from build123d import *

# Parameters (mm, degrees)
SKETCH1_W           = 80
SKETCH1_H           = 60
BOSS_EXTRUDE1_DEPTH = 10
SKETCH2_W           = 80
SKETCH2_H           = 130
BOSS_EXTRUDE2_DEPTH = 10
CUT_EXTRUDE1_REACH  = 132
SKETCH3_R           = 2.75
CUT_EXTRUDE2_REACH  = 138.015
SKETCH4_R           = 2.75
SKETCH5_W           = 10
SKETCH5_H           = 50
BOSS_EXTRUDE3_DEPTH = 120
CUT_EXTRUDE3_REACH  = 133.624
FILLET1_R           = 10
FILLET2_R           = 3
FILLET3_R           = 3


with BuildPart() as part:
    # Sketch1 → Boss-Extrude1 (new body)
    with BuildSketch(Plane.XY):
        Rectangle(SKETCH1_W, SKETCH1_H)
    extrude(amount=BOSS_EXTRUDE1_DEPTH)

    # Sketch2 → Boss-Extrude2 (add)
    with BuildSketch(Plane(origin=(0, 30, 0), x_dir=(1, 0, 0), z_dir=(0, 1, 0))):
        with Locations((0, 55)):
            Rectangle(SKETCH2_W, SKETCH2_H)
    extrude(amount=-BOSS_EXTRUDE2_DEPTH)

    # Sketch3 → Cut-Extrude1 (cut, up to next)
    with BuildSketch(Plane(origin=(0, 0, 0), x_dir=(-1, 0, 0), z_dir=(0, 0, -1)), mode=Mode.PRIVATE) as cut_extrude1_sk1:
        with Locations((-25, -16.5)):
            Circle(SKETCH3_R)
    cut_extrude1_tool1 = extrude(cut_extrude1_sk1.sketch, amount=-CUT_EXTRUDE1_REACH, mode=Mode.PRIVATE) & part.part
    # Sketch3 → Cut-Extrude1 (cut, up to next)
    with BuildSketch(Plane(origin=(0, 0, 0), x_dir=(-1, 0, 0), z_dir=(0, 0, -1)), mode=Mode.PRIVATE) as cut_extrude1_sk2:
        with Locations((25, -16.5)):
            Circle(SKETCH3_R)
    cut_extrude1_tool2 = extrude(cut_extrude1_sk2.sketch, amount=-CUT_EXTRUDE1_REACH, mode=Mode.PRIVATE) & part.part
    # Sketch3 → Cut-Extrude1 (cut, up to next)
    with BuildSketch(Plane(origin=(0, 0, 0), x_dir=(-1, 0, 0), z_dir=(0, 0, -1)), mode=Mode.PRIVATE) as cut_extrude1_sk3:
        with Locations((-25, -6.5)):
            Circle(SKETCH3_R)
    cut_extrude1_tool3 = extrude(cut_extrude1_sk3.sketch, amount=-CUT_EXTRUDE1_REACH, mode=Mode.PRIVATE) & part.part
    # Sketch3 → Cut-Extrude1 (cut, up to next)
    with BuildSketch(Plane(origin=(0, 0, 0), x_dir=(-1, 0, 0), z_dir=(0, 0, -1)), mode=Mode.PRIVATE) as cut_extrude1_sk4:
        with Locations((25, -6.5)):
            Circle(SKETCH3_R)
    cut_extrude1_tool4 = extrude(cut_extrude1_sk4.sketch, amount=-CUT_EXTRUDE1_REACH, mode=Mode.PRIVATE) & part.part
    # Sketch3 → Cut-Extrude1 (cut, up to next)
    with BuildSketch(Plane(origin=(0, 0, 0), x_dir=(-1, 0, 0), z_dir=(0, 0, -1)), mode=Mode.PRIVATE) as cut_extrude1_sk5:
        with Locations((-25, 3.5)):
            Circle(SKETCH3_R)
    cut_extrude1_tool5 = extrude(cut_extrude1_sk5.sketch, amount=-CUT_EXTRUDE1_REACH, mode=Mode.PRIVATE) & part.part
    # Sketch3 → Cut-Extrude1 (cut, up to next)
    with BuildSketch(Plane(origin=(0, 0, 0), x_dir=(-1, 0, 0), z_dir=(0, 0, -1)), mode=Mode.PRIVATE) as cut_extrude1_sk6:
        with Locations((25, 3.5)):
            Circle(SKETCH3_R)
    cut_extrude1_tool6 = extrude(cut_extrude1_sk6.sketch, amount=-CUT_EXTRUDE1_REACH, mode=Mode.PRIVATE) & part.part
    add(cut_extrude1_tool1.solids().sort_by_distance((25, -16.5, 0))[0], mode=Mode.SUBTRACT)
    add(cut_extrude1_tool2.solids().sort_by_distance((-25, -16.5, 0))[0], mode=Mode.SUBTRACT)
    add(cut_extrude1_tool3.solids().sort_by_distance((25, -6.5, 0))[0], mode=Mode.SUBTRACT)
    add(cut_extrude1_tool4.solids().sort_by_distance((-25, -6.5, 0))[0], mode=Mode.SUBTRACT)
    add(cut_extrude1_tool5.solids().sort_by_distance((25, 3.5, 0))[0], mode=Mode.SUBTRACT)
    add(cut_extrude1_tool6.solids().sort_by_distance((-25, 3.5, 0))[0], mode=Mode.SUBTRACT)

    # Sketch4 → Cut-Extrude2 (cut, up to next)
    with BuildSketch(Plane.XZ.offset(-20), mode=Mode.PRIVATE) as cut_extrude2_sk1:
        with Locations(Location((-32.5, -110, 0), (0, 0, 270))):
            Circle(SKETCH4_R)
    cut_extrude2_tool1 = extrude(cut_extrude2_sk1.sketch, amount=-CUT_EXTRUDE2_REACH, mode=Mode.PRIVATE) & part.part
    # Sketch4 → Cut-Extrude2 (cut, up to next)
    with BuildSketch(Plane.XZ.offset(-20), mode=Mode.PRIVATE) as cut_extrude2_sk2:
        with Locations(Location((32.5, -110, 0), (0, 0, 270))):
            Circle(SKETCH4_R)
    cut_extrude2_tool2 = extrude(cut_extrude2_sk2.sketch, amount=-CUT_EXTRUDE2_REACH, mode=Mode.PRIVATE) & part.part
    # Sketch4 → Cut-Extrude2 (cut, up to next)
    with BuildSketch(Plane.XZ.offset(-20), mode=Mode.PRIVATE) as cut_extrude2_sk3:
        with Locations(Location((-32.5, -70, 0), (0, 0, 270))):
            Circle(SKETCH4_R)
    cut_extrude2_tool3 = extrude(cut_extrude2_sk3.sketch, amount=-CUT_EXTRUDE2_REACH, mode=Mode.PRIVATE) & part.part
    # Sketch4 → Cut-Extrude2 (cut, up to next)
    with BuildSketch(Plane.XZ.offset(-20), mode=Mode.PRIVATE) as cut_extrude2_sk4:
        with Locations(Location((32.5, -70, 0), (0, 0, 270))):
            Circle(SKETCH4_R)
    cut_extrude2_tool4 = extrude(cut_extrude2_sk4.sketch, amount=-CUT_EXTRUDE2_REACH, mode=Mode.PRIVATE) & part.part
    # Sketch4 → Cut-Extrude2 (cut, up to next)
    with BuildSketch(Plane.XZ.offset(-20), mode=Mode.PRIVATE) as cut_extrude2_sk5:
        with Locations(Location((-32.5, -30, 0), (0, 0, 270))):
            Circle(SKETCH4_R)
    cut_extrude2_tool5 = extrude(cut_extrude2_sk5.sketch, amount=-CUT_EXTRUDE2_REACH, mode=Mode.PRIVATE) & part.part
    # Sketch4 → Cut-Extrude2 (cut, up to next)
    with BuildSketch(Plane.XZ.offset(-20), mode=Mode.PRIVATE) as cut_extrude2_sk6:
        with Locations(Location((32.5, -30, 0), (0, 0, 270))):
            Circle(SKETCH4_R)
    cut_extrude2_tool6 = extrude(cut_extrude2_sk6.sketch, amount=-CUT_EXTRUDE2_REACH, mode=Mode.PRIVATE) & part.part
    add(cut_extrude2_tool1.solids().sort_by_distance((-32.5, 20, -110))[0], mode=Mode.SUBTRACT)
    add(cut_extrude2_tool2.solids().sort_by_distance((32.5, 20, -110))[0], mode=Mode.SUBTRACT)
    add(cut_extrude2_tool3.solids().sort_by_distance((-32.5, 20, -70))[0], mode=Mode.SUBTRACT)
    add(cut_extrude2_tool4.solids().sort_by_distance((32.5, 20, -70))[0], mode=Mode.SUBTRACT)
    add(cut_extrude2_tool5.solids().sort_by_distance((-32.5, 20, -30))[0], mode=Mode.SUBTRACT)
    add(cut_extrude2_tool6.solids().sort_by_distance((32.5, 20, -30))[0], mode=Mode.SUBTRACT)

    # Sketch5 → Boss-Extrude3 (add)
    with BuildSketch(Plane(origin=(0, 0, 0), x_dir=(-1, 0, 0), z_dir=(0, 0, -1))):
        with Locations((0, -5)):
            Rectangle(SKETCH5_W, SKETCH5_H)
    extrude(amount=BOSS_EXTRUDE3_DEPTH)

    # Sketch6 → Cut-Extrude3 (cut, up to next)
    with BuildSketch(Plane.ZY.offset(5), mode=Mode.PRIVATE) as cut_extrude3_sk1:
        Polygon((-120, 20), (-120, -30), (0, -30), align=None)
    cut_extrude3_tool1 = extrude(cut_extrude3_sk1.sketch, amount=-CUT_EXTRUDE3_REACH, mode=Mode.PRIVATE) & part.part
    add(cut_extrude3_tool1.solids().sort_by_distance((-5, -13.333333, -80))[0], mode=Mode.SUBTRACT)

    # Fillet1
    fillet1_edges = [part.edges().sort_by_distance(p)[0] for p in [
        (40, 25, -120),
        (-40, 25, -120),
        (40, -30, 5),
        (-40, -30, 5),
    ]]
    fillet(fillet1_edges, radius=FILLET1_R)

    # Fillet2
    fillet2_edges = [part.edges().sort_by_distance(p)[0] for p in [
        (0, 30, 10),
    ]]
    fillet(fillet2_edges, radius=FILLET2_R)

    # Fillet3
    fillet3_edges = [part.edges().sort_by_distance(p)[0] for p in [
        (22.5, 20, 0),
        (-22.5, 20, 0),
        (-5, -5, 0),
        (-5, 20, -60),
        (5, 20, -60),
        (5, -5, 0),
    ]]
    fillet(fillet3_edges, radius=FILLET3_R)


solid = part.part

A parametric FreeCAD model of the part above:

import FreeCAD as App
import Part
import Sketcher

V = App.Vector
Q = App.Units.Quantity


def edges_at(feature, points):
    """Names of the edges that pass closest to the given points."""
    edges = feature.Shape.Edges
    near = lambda p: min(range(len(edges)), key=lambda i: edges[i].distToShape(Part.Vertex(*p))[0])
    return sorted({f"Edge{near(p) + 1}" for p in points})


def add_polygon(sketch, points):
    """Adds a closed chain of lines whose ends are joined by coincident constraints."""
    first, n = sketch.GeometryCount, len(points)
    for a, b in zip(points, points[1:] + points[:1]):
        sketch.addGeometry(Part.LineSegment(App.Vector(*a, 0), App.Vector(*b, 0)), False)
    for i in range(n):
        sketch.addConstraint(Sketcher.Constraint("Coincident", first + i, 2, first + (i + 1) % n, 1))

doc = App.newDocument("Part")
params = doc.addObject("Spreadsheet::Sheet", "Params")
for row, (alias, value) in enumerate([
    ("sketch1_width", "80 mm"),
    ("sketch1_height", "60 mm"),
    ("pad1_length", "10 mm"),
    ("sketch2_width", "80 mm"),
    ("sketch2_height", "130 mm"),
    ("pad2_length", "10 mm"),
    ("sketch3_diameter", "5.5 mm"),
    ("sketch4_diameter", "5.5 mm"),
    ("sketch5_diameter", "5.5 mm"),
    ("sketch6_diameter", "5.5 mm"),
    ("sketch7_diameter", "5.5 mm"),
    ("sketch8_diameter", "5.5 mm"),
    ("sketch9_diameter", "5.5 mm"),
    ("sketch10_diameter", "5.5 mm"),
    ("sketch11_diameter", "5.5 mm"),
    ("sketch12_diameter", "5.5 mm"),
    ("sketch13_diameter", "5.5 mm"),
    ("sketch14_diameter", "5.5 mm"),
    ("sketch15_width", "10 mm"),
    ("sketch15_height", "50 mm"),
    ("pad3_length", "120 mm"),
    ("sketch16_width", "50 mm"),
    ("sketch16_height", "120 mm"),
    ("fillet_radius", "10 mm"),
    ("fillet2_radius", "3 mm"),
    ("fillet3_radius", "3 mm"),
], start=1):
    params.set(f"A{row}", alias)
    params.set(f"B{row}", "=" + value)
    params.setAlias(f"B{row}", alias)

body = doc.addObject("PartDesign::Body", "Body")

# Sketch on XY plane
sketch1 = body.newObject("Sketcher::SketchObject", "Sketch")
sketch1.AttachmentSupport = (doc.getObject("XY_Plane"), [""])
sketch1.MapMode = "FlatFace"
add_polygon(sketch1, [(-40, 30), (-40, -30), (40, -30), (40, 30)])  # lines 0-3
sketch1.addConstraint([
    Sketcher.Constraint("Vertical", 0),
    Sketcher.Constraint("Horizontal", 1),
    Sketcher.Constraint("Vertical", 2),
    Sketcher.Constraint("Horizontal", 3),
    Sketcher.Constraint("Symmetric", 0, 2, 2, 2, -1, 1),
    Sketcher.Constraint("DistanceX", 1, 1, 1, 2, Q("80 mm")),
    Sketcher.Constraint("DistanceY", 0, 2, 0, 1, Q("60 mm")),
])
sketch1.setExpression("Constraints[9]", "Params.sketch1_width")
sketch1.setExpression("Constraints[10]", "Params.sketch1_height")
pad1 = body.newObject("PartDesign::Pad", "Pad")
pad1.Profile = sketch1
pad1.setExpression("Length", "Params.pad1_length")

# Sketch on XZ plane
sketch2 = body.newObject("Sketcher::SketchObject", "Sketch001")
sketch2.AttachmentSupport = (doc.getObject("XZ_Plane"), [""])
sketch2.MapMode = "FlatFace"
sketch2.AttachmentOffset = App.Placement(V(0, 0, -30), App.Rotation())
add_polygon(sketch2, [(-40, -120), (-40, 10), (40, 10), (40, -120)])  # lines 0-3
sketch2.addConstraint([
    Sketcher.Constraint("Vertical", 0),
    Sketcher.Constraint("Horizontal", 1),
    Sketcher.Constraint("Vertical", 2),
    Sketcher.Constraint("Horizontal", 3),
    Sketcher.Constraint("DistanceX", 1, 1, 1, 2, Q("80 mm")),
    Sketcher.Constraint("DistanceY", 0, 1, 0, 2, Q("130 mm")),
    Sketcher.Constraint("DistanceX", 0, 2, -1, 1, Q("40 mm")),
    Sketcher.Constraint("DistanceY", -1, 1, 0, 2, Q("10 mm")),
])
sketch2.setExpression("Constraints[8]", "Params.sketch2_width")
sketch2.setExpression("Constraints[9]", "Params.sketch2_height")
pad2 = body.newObject("PartDesign::Pad", "Pad001")
pad2.Profile = sketch2
pad2.setExpression("Length", "Params.pad2_length")

# Sketch on XY plane
sketch3 = body.newObject("Sketcher::SketchObject", "Sketch002")
sketch3.AttachmentSupport = (doc.getObject("XY_Plane"), [""])
sketch3.MapMode = "FlatFace"
sketch3.addGeometry(Part.Circle(V(25, -16.5, 0), V(0, 0, 1), 2.75), False)
sketch3.addConstraint([
    Sketcher.Constraint("Diameter", 0, Q("5.5 mm")),
    Sketcher.Constraint("DistanceX", -1, 1, 0, 3, Q("25 mm")),
    Sketcher.Constraint("DistanceY", 0, 3, -1, 1, Q("16.5 mm")),
])
sketch3.setExpression("Constraints[0]", "Params.sketch3_diameter")
pocket1 = body.newObject("PartDesign::Pocket", "Pocket")
pocket1.Profile = sketch3
pocket1.Type = "UpToFirst"
pocket1.Reversed = True

# Sketch on XY plane
sketch4 = body.newObject("Sketcher::SketchObject", "Sketch003")
sketch4.AttachmentSupport = (doc.getObject("XY_Plane"), [""])
sketch4.MapMode = "FlatFace"
sketch4.addGeometry(Part.Circle(V(-25, -16.5, 0), V(0, 0, 1), 2.75), False)
sketch4.addConstraint([
    Sketcher.Constraint("Diameter", 0, Q("5.5 mm")),
    Sketcher.Constraint("DistanceX", 0, 3, -1, 1, Q("25 mm")),
    Sketcher.Constraint("DistanceY", 0, 3, -1, 1, Q("16.5 mm")),
])
sketch4.setExpression("Constraints[0]", "Params.sketch4_diameter")
pocket2 = body.newObject("PartDesign::Pocket", "Pocket001")
pocket2.Profile = sketch4
pocket2.Type = "UpToFirst"
pocket2.Reversed = True

# Sketch on XY plane
sketch5 = body.newObject("Sketcher::SketchObject", "Sketch004")
sketch5.AttachmentSupport = (doc.getObject("XY_Plane"), [""])
sketch5.MapMode = "FlatFace"
sketch5.addGeometry(Part.Circle(V(25, -6.5, 0), V(0, 0, 1), 2.75), False)
sketch5.addConstraint([
    Sketcher.Constraint("Diameter", 0, Q("5.5 mm")),
    Sketcher.Constraint("DistanceX", -1, 1, 0, 3, Q("25 mm")),
    Sketcher.Constraint("DistanceY", 0, 3, -1, 1, Q("6.5 mm")),
])
sketch5.setExpression("Constraints[0]", "Params.sketch5_diameter")
pocket3 = body.newObject("PartDesign::Pocket", "Pocket002")
pocket3.Profile = sketch5
pocket3.Type = "UpToFirst"
pocket3.Reversed = True

# Sketch on XY plane
sketch6 = body.newObject("Sketcher::SketchObject", "Sketch005")
sketch6.AttachmentSupport = (doc.getObject("XY_Plane"), [""])
sketch6.MapMode = "FlatFace"
sketch6.addGeometry(Part.Circle(V(-25, -6.5, 0), V(0, 0, 1), 2.75), False)
sketch6.addConstraint([
    Sketcher.Constraint("Diameter", 0, Q("5.5 mm")),
    Sketcher.Constraint("DistanceX", 0, 3, -1, 1, Q("25 mm")),
    Sketcher.Constraint("DistanceY", 0, 3, -1, 1, Q("6.5 mm")),
])
sketch6.setExpression("Constraints[0]", "Params.sketch6_diameter")
pocket4 = body.newObject("PartDesign::Pocket", "Pocket003")
pocket4.Profile = sketch6
pocket4.Type = "UpToFirst"
pocket4.Reversed = True

# Sketch on XY plane
sketch7 = body.newObject("Sketcher::SketchObject", "Sketch006")
sketch7.AttachmentSupport = (doc.getObject("XY_Plane"), [""])
sketch7.MapMode = "FlatFace"
sketch7.addGeometry(Part.Circle(V(25, 3.5, 0), V(0, 0, 1), 2.75), False)
sketch7.addConstraint([
    Sketcher.Constraint("Diameter", 0, Q("5.5 mm")),
    Sketcher.Constraint("DistanceX", -1, 1, 0, 3, Q("25 mm")),
    Sketcher.Constraint("DistanceY", -1, 1, 0, 3, Q("3.5 mm")),
])
sketch7.setExpression("Constraints[0]", "Params.sketch7_diameter")
pocket5 = body.newObject("PartDesign::Pocket", "Pocket004")
pocket5.Profile = sketch7
pocket5.Type = "UpToFirst"
pocket5.Reversed = True

# Sketch on XY plane
sketch8 = body.newObject("Sketcher::SketchObject", "Sketch007")
sketch8.AttachmentSupport = (doc.getObject("XY_Plane"), [""])
sketch8.MapMode = "FlatFace"
sketch8.addGeometry(Part.Circle(V(-25, 3.5, 0), V(0, 0, 1), 2.75), False)
sketch8.addConstraint([
    Sketcher.Constraint("Diameter", 0, Q("5.5 mm")),
    Sketcher.Constraint("DistanceX", 0, 3, -1, 1, Q("25 mm")),
    Sketcher.Constraint("DistanceY", -1, 1, 0, 3, Q("3.5 mm")),
])
sketch8.setExpression("Constraints[0]", "Params.sketch8_diameter")
pocket6 = body.newObject("PartDesign::Pocket", "Pocket005")
pocket6.Profile = sketch8
pocket6.Type = "UpToFirst"
pocket6.Reversed = True

# Sketch on XZ plane
sketch9 = body.newObject("Sketcher::SketchObject", "Sketch008")
sketch9.AttachmentSupport = (doc.getObject("XZ_Plane"), [""])
sketch9.MapMode = "FlatFace"
sketch9.AttachmentOffset = App.Placement(V(0, 0, -20), App.Rotation())
sketch9.addGeometry(Part.Circle(V(-32.5, -110, 0), V(0, 0, 1), 2.75), False)
sketch9.addConstraint([
    Sketcher.Constraint("Diameter", 0, Q("5.5 mm")),
    Sketcher.Constraint("DistanceY", 0, 3, -1, 1, Q("110 mm")),
    Sketcher.Constraint("DistanceX", 0, 3, -1, 1, Q("32.5 mm")),
])
sketch9.setExpression("Constraints[0]", "Params.sketch9_diameter")
pocket7 = body.newObject("PartDesign::Pocket", "Pocket006")
pocket7.Profile = sketch9
pocket7.Type = "UpToFirst"

# Sketch on XZ plane
sketch10 = body.newObject("Sketcher::SketchObject", "Sketch009")
sketch10.AttachmentSupport = (doc.getObject("XZ_Plane"), [""])
sketch10.MapMode = "FlatFace"
sketch10.AttachmentOffset = App.Placement(V(0, 0, -20), App.Rotation())
sketch10.addGeometry(Part.Circle(V(32.5, -110, 0), V(0, 0, 1), 2.75), False)
sketch10.addConstraint([
    Sketcher.Constraint("Diameter", 0, Q("5.5 mm")),
    Sketcher.Constraint("DistanceY", 0, 3, -1, 1, Q("110 mm")),
    Sketcher.Constraint("DistanceX", -1, 1, 0, 3, Q("32.5 mm")),
])
sketch10.setExpression("Constraints[0]", "Params.sketch10_diameter")
pocket8 = body.newObject("PartDesign::Pocket", "Pocket007")
pocket8.Profile = sketch10
pocket8.Type = "UpToFirst"

# Sketch on XZ plane
sketch11 = body.newObject("Sketcher::SketchObject", "Sketch010")
sketch11.AttachmentSupport = (doc.getObject("XZ_Plane"), [""])
sketch11.MapMode = "FlatFace"
sketch11.AttachmentOffset = App.Placement(V(0, 0, -20), App.Rotation())
sketch11.addGeometry(Part.Circle(V(-32.5, -70, 0), V(0, 0, 1), 2.75), False)
sketch11.addConstraint([
    Sketcher.Constraint("Diameter", 0, Q("5.5 mm")),
    Sketcher.Constraint("DistanceY", 0, 3, -1, 1, Q("70 mm")),
    Sketcher.Constraint("DistanceX", 0, 3, -1, 1, Q("32.5 mm")),
])
sketch11.setExpression("Constraints[0]", "Params.sketch11_diameter")
pocket9 = body.newObject("PartDesign::Pocket", "Pocket008")
pocket9.Profile = sketch11
pocket9.Type = "UpToFirst"

# Sketch on XZ plane
sketch12 = body.newObject("Sketcher::SketchObject", "Sketch011")
sketch12.AttachmentSupport = (doc.getObject("XZ_Plane"), [""])
sketch12.MapMode = "FlatFace"
sketch12.AttachmentOffset = App.Placement(V(0, 0, -20), App.Rotation())
sketch12.addGeometry(Part.Circle(V(32.5, -70, 0), V(0, 0, 1), 2.75), False)
sketch12.addConstraint([
    Sketcher.Constraint("Diameter", 0, Q("5.5 mm")),
    Sketcher.Constraint("DistanceY", 0, 3, -1, 1, Q("70 mm")),
    Sketcher.Constraint("DistanceX", -1, 1, 0, 3, Q("32.5 mm")),
])
sketch12.setExpression("Constraints[0]", "Params.sketch12_diameter")
pocket10 = body.newObject("PartDesign::Pocket", "Pocket009")
pocket10.Profile = sketch12
pocket10.Type = "UpToFirst"

# Sketch on XZ plane
sketch13 = body.newObject("Sketcher::SketchObject", "Sketch012")
sketch13.AttachmentSupport = (doc.getObject("XZ_Plane"), [""])
sketch13.MapMode = "FlatFace"
sketch13.AttachmentOffset = App.Placement(V(0, 0, -20), App.Rotation())
sketch13.addGeometry(Part.Circle(V(-32.5, -30, 0), V(0, 0, 1), 2.75), False)
sketch13.addConstraint([
    Sketcher.Constraint("Diameter", 0, Q("5.5 mm")),
    Sketcher.Constraint("DistanceY", 0, 3, -1, 1, Q("30 mm")),
    Sketcher.Constraint("DistanceX", 0, 3, -1, 1, Q("32.5 mm")),
])
sketch13.setExpression("Constraints[0]", "Params.sketch13_diameter")
pocket11 = body.newObject("PartDesign::Pocket", "Pocket010")
pocket11.Profile = sketch13
pocket11.Type = "UpToFirst"

# Sketch on XZ plane
sketch14 = body.newObject("Sketcher::SketchObject", "Sketch013")
sketch14.AttachmentSupport = (doc.getObject("XZ_Plane"), [""])
sketch14.MapMode = "FlatFace"
sketch14.AttachmentOffset = App.Placement(V(0, 0, -20), App.Rotation())
sketch14.addGeometry(Part.Circle(V(32.5, -30, 0), V(0, 0, 1), 2.75), False)
sketch14.addConstraint([
    Sketcher.Constraint("Diameter", 0, Q("5.5 mm")),
    Sketcher.Constraint("DistanceY", 0, 3, -1, 1, Q("30 mm")),
    Sketcher.Constraint("DistanceX", -1, 1, 0, 3, Q("32.5 mm")),
])
sketch14.setExpression("Constraints[0]", "Params.sketch14_diameter")
pocket12 = body.newObject("PartDesign::Pocket", "Pocket011")
pocket12.Profile = sketch14
pocket12.Type = "UpToFirst"

# Sketch on XY plane
sketch15 = body.newObject("Sketcher::SketchObject", "Sketch014")
sketch15.AttachmentSupport = (doc.getObject("XY_Plane"), [""])
sketch15.MapMode = "FlatFace"
add_polygon(sketch15, [(5, 20), (5, -30), (-5, -30), (-5, 20)])  # lines 0-3
sketch15.addConstraint([
    Sketcher.Constraint("Vertical", 0),
    Sketcher.Constraint("Horizontal", 1),
    Sketcher.Constraint("Vertical", 2),
    Sketcher.Constraint("Horizontal", 3),
    Sketcher.Constraint("DistanceX", 1, 2, 1, 1, Q("10 mm")),
    Sketcher.Constraint("DistanceY", 0, 2, 0, 1, Q("50 mm")),
    Sketcher.Constraint("DistanceX", -1, 1, 0, 2, Q("5 mm")),
    Sketcher.Constraint("DistanceY", 0, 2, -1, 1, Q("30 mm")),
])
sketch15.setExpression("Constraints[8]", "Params.sketch15_width")
sketch15.setExpression("Constraints[9]", "Params.sketch15_height")
pad3 = body.newObject("PartDesign::Pad", "Pad002")
pad3.Profile = sketch15
pad3.setExpression("Length", "Params.pad3_length")
pad3.Reversed = True

# Sketch on YZ plane
sketch16 = body.newObject("Sketcher::SketchObject", "Sketch015")
sketch16.AttachmentSupport = (doc.getObject("YZ_Plane"), [""])
sketch16.MapMode = "FlatFace"
sketch16.AttachmentOffset = App.Placement(V(0, 0, -5), App.Rotation())
add_polygon(sketch16, [(20, -120), (-30, -120), (-30, 0)])  # lines 0-2
sketch16.addConstraint([
    Sketcher.Constraint("Horizontal", 0),
    Sketcher.Constraint("Vertical", 1),
    Sketcher.Constraint("PointOnObject", 1, 2, -1),
    Sketcher.Constraint("DistanceX", 0, 2, 0, 1, Q("50 mm")),
    Sketcher.Constraint("DistanceY", 1, 1, 1, 2, Q("120 mm")),
    Sketcher.Constraint("DistanceX", 0, 2, -1, 1, Q("30 mm")),
])
sketch16.setExpression("Constraints[6]", "Params.sketch16_width")
sketch16.setExpression("Constraints[7]", "Params.sketch16_height")
pocket13 = body.newObject("PartDesign::Pocket", "Pocket012")
pocket13.Profile = sketch16
pocket13.Type = "UpToFirst"
pocket13.Reversed = True
doc.recompute()

fillet = body.newObject("PartDesign::Fillet", "Fillet")
fillet.Base = (pocket13, edges_at(pocket13, [
    (40, 25, -120),
    (-40, 25, -120),
    (40, -30, 5),
    (-40, -30, 5),
]))
fillet.setExpression("Radius", "Params.fillet_radius")
doc.recompute()

fillet2 = body.newObject("PartDesign::Fillet", "Fillet001")
fillet2.Base = (fillet, edges_at(fillet, [(0, 30, 10)]))
fillet2.setExpression("Radius", "Params.fillet2_radius")
doc.recompute()

fillet3 = body.newObject("PartDesign::Fillet", "Fillet002")
fillet3.Base = (fillet2, edges_at(fillet2, [
    (22.5, 20, 0),
    (-22.5, 20, 0),
    (-5, -5, 0),
    (-5, 20, -60),
    (5, 20, -60),
    (5, -5, 0),
]))
fillet3.setExpression("Radius", "Params.fillet3_radius")

doc.recompute()
